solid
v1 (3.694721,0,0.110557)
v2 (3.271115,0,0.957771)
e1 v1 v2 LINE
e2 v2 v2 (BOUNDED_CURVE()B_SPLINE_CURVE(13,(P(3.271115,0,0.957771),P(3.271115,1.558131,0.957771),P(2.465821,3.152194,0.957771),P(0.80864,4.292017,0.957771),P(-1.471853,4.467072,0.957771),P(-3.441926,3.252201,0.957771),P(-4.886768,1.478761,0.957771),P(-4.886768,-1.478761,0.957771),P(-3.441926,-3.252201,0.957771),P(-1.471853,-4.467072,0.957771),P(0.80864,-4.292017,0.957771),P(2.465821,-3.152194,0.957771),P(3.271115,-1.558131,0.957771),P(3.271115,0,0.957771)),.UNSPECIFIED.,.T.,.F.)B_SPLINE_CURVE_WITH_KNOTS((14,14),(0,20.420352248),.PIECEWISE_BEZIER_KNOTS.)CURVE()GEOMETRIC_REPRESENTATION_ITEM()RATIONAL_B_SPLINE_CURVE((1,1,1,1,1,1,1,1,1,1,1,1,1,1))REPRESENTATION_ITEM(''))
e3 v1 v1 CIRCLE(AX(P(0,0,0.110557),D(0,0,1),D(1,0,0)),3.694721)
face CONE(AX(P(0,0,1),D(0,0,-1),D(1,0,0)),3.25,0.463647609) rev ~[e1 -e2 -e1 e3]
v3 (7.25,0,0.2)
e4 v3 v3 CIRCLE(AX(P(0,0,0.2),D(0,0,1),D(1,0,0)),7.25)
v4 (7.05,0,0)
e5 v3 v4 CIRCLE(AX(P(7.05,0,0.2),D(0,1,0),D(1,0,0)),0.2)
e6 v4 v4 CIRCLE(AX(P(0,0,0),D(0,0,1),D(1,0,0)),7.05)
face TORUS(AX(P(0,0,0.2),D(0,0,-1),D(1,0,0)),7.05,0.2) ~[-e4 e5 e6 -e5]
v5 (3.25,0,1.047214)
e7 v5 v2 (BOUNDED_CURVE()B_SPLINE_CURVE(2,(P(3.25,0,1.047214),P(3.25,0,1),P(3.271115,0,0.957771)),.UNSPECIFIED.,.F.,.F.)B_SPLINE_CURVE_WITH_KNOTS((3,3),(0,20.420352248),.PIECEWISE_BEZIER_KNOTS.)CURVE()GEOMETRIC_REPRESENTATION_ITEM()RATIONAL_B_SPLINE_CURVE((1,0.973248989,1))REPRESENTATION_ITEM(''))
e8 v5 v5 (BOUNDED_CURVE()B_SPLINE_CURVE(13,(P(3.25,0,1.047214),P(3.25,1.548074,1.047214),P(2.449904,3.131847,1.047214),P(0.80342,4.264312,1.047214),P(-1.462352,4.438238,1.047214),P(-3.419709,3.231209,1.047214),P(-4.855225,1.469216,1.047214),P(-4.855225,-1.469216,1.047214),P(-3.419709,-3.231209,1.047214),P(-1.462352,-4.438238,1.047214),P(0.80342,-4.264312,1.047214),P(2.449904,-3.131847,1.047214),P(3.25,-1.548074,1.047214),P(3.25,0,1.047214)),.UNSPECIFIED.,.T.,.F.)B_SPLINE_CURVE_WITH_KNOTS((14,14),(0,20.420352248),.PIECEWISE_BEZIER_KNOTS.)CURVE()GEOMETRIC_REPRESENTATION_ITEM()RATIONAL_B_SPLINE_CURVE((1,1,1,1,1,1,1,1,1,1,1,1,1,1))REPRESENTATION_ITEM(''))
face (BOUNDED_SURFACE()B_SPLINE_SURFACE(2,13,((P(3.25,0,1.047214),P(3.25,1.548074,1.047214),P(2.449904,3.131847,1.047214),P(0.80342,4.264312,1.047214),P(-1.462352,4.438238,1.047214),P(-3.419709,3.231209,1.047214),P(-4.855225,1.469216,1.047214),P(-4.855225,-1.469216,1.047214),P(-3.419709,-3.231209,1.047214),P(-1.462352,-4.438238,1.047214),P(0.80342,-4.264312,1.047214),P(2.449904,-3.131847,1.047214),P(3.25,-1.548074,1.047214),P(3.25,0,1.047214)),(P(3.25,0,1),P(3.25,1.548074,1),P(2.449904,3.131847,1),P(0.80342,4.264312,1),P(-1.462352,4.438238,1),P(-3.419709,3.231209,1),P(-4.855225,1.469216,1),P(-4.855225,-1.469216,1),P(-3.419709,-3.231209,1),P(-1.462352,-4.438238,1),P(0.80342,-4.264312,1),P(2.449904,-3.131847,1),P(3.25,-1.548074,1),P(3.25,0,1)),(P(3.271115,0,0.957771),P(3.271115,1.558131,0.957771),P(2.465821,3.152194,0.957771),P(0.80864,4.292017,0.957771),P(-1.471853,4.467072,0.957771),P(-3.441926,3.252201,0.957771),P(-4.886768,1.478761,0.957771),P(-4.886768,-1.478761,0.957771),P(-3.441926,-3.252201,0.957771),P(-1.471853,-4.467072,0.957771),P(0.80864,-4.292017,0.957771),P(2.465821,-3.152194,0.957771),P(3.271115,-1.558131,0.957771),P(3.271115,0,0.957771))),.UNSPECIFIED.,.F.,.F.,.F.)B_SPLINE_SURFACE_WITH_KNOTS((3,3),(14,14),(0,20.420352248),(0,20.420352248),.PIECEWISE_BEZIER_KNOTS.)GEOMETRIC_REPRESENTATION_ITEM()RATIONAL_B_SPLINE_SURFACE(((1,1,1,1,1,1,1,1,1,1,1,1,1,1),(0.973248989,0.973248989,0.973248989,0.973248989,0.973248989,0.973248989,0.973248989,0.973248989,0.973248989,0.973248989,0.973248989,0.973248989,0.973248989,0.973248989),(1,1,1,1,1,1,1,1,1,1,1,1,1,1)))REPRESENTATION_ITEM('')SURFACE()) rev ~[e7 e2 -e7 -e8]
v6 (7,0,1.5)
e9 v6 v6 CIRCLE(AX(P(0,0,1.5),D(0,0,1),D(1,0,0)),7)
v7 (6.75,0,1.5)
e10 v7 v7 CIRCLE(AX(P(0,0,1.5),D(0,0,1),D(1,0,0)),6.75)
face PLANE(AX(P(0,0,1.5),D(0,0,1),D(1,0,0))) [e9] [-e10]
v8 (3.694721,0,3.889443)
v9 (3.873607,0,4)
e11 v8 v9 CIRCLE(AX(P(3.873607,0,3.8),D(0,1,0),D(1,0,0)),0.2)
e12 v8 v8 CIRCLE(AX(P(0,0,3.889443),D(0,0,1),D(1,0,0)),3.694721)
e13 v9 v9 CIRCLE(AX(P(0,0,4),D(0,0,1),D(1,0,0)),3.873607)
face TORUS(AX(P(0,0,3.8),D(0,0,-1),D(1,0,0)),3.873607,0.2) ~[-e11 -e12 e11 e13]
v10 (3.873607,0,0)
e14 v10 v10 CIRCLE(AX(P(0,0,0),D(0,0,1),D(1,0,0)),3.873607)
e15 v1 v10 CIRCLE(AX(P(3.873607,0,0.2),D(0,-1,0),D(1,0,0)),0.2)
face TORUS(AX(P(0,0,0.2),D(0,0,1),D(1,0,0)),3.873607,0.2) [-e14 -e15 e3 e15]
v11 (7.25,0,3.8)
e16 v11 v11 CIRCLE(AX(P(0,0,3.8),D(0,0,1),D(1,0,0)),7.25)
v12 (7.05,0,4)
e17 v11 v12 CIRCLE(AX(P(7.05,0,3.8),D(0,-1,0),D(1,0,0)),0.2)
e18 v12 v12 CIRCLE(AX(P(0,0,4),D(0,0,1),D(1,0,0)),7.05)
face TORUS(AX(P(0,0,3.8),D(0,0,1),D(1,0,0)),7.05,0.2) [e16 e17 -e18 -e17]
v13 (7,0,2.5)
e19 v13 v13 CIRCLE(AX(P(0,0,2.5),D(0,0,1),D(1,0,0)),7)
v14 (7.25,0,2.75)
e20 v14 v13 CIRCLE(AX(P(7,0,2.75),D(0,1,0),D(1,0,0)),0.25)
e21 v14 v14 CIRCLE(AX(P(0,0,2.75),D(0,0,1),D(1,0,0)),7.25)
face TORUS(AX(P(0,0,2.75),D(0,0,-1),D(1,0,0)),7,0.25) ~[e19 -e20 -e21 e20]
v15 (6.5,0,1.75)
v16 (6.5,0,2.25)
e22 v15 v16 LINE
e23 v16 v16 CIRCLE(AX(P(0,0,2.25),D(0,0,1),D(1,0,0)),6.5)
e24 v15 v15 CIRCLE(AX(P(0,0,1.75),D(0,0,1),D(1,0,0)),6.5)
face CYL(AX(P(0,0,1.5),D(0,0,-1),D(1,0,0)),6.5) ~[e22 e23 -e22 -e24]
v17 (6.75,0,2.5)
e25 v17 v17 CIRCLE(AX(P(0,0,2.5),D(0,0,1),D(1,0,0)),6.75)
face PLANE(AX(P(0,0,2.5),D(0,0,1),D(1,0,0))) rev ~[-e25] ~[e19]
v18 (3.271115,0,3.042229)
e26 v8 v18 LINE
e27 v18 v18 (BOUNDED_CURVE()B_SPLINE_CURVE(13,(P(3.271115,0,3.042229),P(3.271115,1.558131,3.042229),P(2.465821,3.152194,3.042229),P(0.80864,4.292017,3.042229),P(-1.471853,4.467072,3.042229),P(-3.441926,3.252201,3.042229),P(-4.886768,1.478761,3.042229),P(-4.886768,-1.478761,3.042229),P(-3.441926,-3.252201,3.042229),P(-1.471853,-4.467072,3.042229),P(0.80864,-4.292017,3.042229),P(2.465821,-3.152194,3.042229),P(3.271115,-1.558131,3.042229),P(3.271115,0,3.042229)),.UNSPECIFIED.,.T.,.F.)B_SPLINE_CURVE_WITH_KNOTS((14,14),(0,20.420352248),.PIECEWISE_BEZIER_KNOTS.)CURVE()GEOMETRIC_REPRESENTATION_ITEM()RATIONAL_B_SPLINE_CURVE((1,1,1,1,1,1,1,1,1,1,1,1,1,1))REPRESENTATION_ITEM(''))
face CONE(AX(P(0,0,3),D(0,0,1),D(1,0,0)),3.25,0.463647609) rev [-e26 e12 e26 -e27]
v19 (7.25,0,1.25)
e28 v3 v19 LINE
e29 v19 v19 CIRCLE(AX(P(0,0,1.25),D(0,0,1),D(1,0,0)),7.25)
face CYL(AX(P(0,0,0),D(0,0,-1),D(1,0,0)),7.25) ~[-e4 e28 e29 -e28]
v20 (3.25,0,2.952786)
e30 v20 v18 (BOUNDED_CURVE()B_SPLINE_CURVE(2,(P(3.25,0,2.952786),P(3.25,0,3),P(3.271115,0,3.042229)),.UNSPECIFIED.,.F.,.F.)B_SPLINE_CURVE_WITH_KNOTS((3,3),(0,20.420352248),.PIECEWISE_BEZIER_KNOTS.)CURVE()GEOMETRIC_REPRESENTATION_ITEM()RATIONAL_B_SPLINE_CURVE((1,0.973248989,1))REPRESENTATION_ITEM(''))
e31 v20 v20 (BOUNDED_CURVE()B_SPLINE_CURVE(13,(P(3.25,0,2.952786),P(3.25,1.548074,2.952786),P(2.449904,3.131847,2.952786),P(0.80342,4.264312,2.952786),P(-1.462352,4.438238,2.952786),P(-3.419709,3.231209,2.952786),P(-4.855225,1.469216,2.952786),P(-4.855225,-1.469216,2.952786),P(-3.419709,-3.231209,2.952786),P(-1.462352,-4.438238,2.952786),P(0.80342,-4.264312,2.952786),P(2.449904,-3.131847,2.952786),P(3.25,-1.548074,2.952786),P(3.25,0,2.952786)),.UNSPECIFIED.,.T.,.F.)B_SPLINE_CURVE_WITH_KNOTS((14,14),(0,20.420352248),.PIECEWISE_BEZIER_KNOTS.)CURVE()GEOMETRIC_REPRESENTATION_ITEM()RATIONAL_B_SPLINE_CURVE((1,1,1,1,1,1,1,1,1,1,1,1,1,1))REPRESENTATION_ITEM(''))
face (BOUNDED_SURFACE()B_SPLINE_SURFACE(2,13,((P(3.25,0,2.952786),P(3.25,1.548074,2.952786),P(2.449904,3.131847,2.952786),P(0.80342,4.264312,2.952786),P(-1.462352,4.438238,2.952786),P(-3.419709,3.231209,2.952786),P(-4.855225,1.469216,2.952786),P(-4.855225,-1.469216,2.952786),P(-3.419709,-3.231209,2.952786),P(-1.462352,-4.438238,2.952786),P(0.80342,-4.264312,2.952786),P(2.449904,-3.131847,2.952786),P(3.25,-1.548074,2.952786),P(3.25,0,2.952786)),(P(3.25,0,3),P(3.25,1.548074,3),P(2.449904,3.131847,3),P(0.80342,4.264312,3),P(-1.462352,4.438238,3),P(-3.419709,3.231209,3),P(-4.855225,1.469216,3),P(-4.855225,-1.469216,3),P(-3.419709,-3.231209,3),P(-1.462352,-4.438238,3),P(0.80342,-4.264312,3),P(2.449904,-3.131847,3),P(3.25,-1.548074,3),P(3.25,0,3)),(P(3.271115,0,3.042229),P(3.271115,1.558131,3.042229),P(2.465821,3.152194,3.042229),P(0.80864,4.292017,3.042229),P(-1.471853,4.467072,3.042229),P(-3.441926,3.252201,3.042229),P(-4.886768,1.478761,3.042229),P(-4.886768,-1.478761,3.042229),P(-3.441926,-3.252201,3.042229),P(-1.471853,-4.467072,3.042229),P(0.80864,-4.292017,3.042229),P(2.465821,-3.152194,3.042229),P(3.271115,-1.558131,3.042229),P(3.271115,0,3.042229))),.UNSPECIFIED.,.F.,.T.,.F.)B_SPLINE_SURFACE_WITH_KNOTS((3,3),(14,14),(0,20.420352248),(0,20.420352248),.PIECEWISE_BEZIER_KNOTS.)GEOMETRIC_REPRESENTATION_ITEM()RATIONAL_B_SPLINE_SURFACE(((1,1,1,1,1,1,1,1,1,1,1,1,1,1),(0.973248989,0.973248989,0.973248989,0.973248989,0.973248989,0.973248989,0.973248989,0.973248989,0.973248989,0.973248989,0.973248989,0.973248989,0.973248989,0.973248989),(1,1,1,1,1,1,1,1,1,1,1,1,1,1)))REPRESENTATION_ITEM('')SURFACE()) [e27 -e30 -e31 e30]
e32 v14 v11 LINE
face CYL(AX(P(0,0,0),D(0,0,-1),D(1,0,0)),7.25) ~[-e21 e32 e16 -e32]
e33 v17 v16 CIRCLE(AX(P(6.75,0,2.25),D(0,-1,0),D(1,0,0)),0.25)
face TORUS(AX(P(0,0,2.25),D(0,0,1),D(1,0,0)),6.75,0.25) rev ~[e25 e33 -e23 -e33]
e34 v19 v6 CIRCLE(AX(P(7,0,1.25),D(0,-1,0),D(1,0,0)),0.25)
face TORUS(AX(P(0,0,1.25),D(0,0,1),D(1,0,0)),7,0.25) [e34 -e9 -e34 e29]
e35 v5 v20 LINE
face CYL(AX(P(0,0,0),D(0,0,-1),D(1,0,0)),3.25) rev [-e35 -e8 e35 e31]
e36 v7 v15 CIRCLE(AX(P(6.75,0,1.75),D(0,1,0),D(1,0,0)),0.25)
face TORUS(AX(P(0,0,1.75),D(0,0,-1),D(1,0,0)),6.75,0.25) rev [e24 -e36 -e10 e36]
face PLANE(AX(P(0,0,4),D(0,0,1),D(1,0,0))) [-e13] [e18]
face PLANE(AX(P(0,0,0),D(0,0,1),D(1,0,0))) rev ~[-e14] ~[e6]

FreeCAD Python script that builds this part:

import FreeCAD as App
import Part
import Sketcher
from FreeCAD import Vector


def edges_at(feature, points):
    """Names of the edges that pass closest to the given points."""
    edges = feature.Shape.Edges
    near = lambda p: min(range(len(edges)), key=lambda i: edges[i].distToShape(Part.Vertex(*p))[0])
    return sorted({f"Edge{near(p) + 1}" for p in points})

doc = App.newDocument("Part")
body = doc.addObject("PartDesign::Body", "Body")

sketch1 = doc.addObject("Sketcher::SketchObject", "Sketch")
body.addObject(sketch1)
sketch1.AttachmentSupport = (doc.XY_Plane, [""])
sketch1.MapMode = "FlatFace"
sketch1.addGeometry([
    Part.Circle(Vector(0, 0, 0), Vector(0, 0, 1), 7.2),
    Part.Circle(Vector(0, 0, 0), Vector(0, 0, 1), 3.2),
], False)
sketch1.addConstraint([
    Sketcher.Constraint("Coincident", 0, 3, -1, 1),
    Sketcher.Constraint("Coincident", 1, 3, -1, 1),
    Sketcher.Constraint("Diameter", 0, 14.5),
    Sketcher.Constraint("Diameter", 1, 6.5),
])
pad1 = doc.addObject("PartDesign::Pad", "Pad")
body.addObject(pad1)
pad1.Profile = sketch1
pad1.Length = 4
doc.recompute()

fillet = doc.addObject("PartDesign::Fillet", "Fillet")
body.addObject(fillet)
fillet.Base = (pad1, edges_at(pad1, [(-7.25, 0, 4), (-7.25, 0, 0)]))
fillet.Radius = 0.2
doc.recompute()

chamfer = doc.addObject("PartDesign::Chamfer", "Chamfer")
body.addObject(chamfer)
chamfer.Base = (fillet, edges_at(fillet, [(-3.25, 0, 4)]))
chamfer.ChamferType = "Two distances"
chamfer.Size = 0.5
chamfer.Size2 = 1
doc.recompute()

chamfer2 = doc.addObject("PartDesign::Chamfer", "Chamfer001")
body.addObject(chamfer2)
chamfer2.Base = (chamfer, edges_at(chamfer, [(-3.25, 0, 0)]))
chamfer2.ChamferType = "Two distances"
chamfer2.Size = 0.5
chamfer2.Size2 = 1
chamfer2.FlipDirection = True
doc.recompute()

fillet2 = doc.addObject("PartDesign::Fillet", "Fillet001")
body.addObject(fillet2)
fillet2.Base = (chamfer2, edges_at(chamfer2, [
    (-3.75, 0, 4),
    (-3.25, 0, 3),
    (-3.25, 0, 1),
    (3.5, 0, 0.5),
    (-3.75, 0, 0),
]))
fillet2.Radius = 0.2

sketch2 = doc.addObject("Sketcher::SketchObject", "Sketch001")
body.addObject(sketch2)
sketch2.AttachmentSupport = (doc.XY_Plane, [""])
sketch2.MapMode = "FlatFace"
sketch2.AttachmentOffset = App.Placement(Vector(0, 0, 1.5), App.Rotation())
sketch2.addGeometry([
    Part.Circle(Vector(0, 0, 0), Vector(0, 0, 1), 7),
    Part.Circle(Vector(0, 0, 0), Vector(0, 0, 1), 6),
], False)
sketch2.addConstraint([
    Sketcher.Constraint("Coincident", 0, 3, -1, 1),
    Sketcher.Constraint("Coincident", 1, 3, -1, 1),
    Sketcher.Constraint("Diameter", 1, 13.0),
    Sketcher.Constraint("Diameter", 0, 14.5),
])
pocket1 = doc.addObject("PartDesign::Pocket", "Pocket")
body.addObject(pocket1)
pocket1.Profile = sketch2
pocket1.Length = 1
pocket1.Reversed = True
doc.recompute()

fillet3 = doc.addObject("PartDesign::Fillet", "Fillet002")
body.addObject(fillet3)
fillet3.Base = (pocket1, edges_at(pocket1, [
    (-7.25, 0, 2.5),
    (-7.25, 0, 1.5),
    (-6.5, 0, 1.5),
    (-6.5, 0, 2.5),
]))
fillet3.Radius = 0.25

doc.recompute()
